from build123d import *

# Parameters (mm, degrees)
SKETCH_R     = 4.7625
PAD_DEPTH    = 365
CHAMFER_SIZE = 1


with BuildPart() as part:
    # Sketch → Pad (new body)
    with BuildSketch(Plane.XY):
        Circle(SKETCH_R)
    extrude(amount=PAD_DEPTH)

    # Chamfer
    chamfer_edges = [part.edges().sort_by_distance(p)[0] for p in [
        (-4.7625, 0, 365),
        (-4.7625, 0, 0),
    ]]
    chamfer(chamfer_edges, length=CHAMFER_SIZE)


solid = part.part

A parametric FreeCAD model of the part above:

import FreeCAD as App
import Part
import Sketcher
Q = App.Units.Quantity


def edges_at(feature, points):
    """Names of the edges that pass closest to the given points."""
    edges = feature.Shape.Edges
    near = lambda p: min(range(len(edges)), key=lambda i: edges[i].distToShape(Part.Vertex(*p))[0])
    return sorted({f"Edge{near(p) + 1}" for p in points})

doc = App.newDocument("Part")
params = doc.addObject("Spreadsheet::Sheet", "Params")
for row, (alias, value) in enumerate([
    ("pad1_length", "365 mm"),
    ("chamfer_size", "1 mm"),
], start=1):
    params.set(f"A{row}", alias)
    params.set(f"B{row}", "=" + value)
    params.setAlias(f"B{row}", alias)

body = doc.addObject("PartDesign::Body", "Body")

sketch1 = body.newObject("Sketcher::SketchObject", "Sketch")
sketch1.AttachmentSupport = (doc.getObject("XY_Plane"), [""])
sketch1.MapMode = "FlatFace"
sketch1.addGeometry(Part.Circle(App.Vector(0, 0, 0), App.Vector(0, 0, 1), 4.7625), False)
sketch1.addConstraint([
    Sketcher.Constraint("Coincident", 0, 3, -1, 1),
    Sketcher.Constraint("Diameter", 0, Q("9.525 mm")),
])
pad1 = body.newObject("PartDesign::Pad", "Pad")
pad1.Profile = sketch1
pad1.setExpression("Length", "Params.pad1_length")
doc.recompute()

chamfer = body.newObject("PartDesign::Chamfer", "Chamfer")
chamfer.Base = (pad1, edges_at(pad1, [(-4.763, 0, 365), (-4.763, 0, 0)]))
chamfer.setExpression("Size", "Params.chamfer_size")

doc.recompute()
